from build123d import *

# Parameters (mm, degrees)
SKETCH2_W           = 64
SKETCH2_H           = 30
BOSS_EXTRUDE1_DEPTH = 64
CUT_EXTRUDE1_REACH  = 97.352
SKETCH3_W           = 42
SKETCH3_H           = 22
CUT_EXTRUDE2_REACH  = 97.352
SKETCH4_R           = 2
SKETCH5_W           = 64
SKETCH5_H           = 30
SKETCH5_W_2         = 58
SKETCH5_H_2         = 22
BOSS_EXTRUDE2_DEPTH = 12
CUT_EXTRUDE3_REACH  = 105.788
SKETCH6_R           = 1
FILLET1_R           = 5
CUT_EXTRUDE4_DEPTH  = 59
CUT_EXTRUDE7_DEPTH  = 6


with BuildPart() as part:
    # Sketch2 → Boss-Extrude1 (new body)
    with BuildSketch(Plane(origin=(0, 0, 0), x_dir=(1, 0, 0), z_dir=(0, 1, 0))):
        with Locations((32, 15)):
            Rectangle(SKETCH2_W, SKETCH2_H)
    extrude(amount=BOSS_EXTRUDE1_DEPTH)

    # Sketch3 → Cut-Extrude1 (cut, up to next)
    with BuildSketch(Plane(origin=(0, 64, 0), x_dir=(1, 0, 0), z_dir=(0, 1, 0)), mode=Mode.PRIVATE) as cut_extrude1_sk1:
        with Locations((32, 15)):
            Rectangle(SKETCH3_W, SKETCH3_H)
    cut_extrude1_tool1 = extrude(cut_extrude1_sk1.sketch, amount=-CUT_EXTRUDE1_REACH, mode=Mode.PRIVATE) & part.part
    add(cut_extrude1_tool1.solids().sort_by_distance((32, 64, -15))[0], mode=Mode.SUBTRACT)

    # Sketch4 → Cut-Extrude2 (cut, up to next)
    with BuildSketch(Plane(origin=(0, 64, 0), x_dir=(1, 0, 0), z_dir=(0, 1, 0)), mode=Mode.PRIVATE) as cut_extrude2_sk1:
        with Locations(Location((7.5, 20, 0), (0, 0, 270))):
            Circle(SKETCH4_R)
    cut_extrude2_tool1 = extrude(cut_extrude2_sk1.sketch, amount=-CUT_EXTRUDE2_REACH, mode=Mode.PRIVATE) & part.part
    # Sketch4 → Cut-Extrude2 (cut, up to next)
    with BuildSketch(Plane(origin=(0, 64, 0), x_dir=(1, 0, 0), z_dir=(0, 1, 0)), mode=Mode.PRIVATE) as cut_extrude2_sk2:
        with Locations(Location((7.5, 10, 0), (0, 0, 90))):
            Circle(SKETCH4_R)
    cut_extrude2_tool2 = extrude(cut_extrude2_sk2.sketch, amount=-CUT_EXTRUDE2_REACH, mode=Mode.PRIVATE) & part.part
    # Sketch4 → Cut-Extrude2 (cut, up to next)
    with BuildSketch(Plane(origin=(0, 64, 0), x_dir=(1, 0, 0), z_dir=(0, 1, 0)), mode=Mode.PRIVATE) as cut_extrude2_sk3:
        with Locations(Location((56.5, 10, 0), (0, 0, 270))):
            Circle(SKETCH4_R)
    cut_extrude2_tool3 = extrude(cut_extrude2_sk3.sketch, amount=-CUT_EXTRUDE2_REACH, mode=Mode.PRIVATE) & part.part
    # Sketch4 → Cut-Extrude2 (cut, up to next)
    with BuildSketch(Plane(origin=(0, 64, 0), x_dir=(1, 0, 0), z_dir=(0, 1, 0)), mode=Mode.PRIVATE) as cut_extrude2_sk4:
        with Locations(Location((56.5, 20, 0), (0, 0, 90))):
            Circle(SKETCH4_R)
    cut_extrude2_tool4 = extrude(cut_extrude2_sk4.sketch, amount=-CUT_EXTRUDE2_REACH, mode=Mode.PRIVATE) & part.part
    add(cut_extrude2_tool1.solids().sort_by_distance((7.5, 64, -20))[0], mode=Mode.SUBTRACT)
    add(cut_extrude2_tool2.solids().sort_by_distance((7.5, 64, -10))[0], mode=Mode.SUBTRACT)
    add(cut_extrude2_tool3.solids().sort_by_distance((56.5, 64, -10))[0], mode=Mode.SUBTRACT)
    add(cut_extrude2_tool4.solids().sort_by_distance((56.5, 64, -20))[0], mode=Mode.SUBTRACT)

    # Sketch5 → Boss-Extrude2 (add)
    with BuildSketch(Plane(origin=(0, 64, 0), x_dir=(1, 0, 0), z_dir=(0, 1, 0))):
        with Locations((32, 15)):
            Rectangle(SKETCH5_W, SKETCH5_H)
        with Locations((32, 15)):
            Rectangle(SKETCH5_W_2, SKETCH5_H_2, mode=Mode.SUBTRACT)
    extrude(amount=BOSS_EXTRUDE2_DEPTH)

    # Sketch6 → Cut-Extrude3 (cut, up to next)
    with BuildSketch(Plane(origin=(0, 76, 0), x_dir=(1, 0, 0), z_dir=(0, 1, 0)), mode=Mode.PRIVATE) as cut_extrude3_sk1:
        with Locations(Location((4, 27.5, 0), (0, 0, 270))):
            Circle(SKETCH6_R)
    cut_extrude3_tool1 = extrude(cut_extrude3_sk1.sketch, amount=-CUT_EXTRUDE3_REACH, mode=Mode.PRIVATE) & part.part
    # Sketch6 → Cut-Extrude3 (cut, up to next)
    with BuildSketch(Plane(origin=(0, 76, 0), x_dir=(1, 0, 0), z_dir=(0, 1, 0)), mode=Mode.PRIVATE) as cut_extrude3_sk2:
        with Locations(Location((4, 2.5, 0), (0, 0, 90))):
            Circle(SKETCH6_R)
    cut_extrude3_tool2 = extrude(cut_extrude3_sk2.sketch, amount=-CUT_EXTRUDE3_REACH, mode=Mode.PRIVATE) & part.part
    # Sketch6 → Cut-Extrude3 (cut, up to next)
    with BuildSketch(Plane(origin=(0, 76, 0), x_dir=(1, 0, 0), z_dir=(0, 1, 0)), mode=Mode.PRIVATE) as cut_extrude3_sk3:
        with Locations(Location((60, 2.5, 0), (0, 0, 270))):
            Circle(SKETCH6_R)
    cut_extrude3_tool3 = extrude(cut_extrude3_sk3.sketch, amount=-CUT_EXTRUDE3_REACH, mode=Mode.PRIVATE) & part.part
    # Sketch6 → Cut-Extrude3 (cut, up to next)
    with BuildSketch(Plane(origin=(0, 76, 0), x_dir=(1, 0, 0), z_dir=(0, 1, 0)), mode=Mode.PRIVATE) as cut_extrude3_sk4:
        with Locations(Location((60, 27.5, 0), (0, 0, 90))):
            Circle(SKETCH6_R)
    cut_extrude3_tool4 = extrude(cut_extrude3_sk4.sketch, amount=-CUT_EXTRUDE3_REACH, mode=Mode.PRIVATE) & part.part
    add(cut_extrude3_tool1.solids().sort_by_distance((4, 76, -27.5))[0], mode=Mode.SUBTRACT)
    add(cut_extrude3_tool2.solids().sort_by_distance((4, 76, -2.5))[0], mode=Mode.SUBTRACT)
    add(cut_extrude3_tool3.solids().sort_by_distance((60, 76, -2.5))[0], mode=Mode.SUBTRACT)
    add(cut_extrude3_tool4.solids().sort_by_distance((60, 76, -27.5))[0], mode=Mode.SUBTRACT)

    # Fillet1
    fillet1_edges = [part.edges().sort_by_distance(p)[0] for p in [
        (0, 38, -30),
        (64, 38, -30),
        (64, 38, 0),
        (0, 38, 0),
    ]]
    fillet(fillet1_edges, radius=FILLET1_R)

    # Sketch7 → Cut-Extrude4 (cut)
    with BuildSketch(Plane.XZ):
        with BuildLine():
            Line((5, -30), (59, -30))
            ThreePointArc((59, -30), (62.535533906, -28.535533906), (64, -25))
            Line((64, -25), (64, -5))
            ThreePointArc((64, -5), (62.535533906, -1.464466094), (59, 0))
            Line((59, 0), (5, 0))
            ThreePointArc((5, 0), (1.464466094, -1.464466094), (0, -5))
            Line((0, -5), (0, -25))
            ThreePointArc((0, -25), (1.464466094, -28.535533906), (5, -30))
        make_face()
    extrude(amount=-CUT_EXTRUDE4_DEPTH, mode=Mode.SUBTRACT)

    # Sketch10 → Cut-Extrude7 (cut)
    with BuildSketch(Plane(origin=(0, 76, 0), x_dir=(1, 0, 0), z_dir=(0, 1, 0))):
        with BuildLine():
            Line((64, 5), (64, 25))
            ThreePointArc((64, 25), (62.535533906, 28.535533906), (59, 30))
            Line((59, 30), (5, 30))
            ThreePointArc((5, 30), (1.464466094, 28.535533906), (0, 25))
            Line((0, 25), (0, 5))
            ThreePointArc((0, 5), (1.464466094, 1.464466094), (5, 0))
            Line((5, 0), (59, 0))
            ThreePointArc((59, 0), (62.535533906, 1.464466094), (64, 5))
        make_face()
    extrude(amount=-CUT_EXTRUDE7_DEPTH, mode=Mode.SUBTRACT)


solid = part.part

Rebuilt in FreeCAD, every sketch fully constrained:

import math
import FreeCAD as App
import Part
import Sketcher


def edges_at(feature, points):
    """Names of the edges that pass closest to the given points."""
    edges = feature.Shape.Edges
    near = lambda p: min(range(len(edges)), key=lambda i: edges[i].distToShape(Part.Vertex(*p))[0])
    return sorted({f"Edge{near(p) + 1}" for p in points})


def add_polygon(sketch, points):
    """Adds a closed chain of lines whose ends are joined by coincident constraints."""
    first, n = sketch.GeometryCount, len(points)
    for a, b in zip(points, points[1:] + points[:1]):
        sketch.addGeometry(Part.LineSegment(App.Vector(*a, 0), App.Vector(*b, 0)), False)
    for i in range(n):
        sketch.addConstraint(Sketcher.Constraint("Coincident", first + i, 2, first + (i + 1) % n, 1))

doc = App.newDocument("Part")
body = doc.addObject("PartDesign::Body", "Body")

# Sketch on XZ plane
sketch1 = body.newObject("Sketcher::SketchObject", "Sketch")
sketch1.AttachmentSupport = (doc.getObject("XZ_Plane"), [""])
sketch1.MapMode = "FlatFace"
add_polygon(sketch1, [(0, -30), (0, 0), (64, 0), (64, -30)])  # lines 0-3
sketch1.addConstraint([
    Sketcher.Constraint("Vertical", 0),
    Sketcher.Constraint("Horizontal", 1),
    Sketcher.Constraint("Vertical", 2),
    Sketcher.Constraint("Horizontal", 3),
    Sketcher.Constraint("Coincident", 0, 2, -1, 1),
    Sketcher.Constraint("DistanceX", 1, 1, 1, 2, 64.0),
    Sketcher.Constraint("DistanceY", 0, 1, 0, 2, 30.0),
])
pad1 = body.newObject("PartDesign::Pad", "Pad")
pad1.Profile = sketch1
pad1.Length = 64
pad1.Reversed = True

# Sketch on XZ plane
sketch2 = body.newObject("Sketcher::SketchObject", "Sketch001")
sketch2.AttachmentSupport = (doc.getObject("XZ_Plane"), [""])
sketch2.MapMode = "FlatFace"
sketch2.AttachmentOffset = App.Placement(App.Vector(0, 0, -64), App.Rotation())
add_polygon(sketch2, [(11, -26), (11, -4), (53, -4), (53, -26)])  # lines 0-3
sketch2.addConstraint([
    Sketcher.Constraint("Vertical", 0),
    Sketcher.Constraint("Horizontal", 1),
    Sketcher.Constraint("Vertical", 2),
    Sketcher.Constraint("Horizontal", 3),
    Sketcher.Constraint("DistanceX", 1, 1, 1, 2, 42.0),
    Sketcher.Constraint("DistanceY", 0, 1, 0, 2, 22.0),
    Sketcher.Constraint("DistanceX", -1, 1, 0, 2, 11.0),
    Sketcher.Constraint("DistanceY", 0, 2, -1, 1, 4.0),
])
pocket1 = body.newObject("PartDesign::Pocket", "Pocket")
pocket1.Profile = sketch2
pocket1.Type = "UpToFirst"
pocket1.Reversed = True

# Sketch on XZ plane
sketch3 = body.newObject("Sketcher::SketchObject", "Sketch002")
sketch3.AttachmentSupport = (doc.getObject("XZ_Plane"), [""])
sketch3.MapMode = "FlatFace"
sketch3.AttachmentOffset = App.Placement(App.Vector(0, 0, -64), App.Rotation())
sketch3.addGeometry(Part.Circle(App.Vector(7.5, -20, 0), App.Vector(0, 0, 1), 2), False)
sketch3.addConstraint([
    Sketcher.Constraint("Diameter", 0, 4.0),
    Sketcher.Constraint("DistanceY", 0, 3, -1, 1, 20.0),
    Sketcher.Constraint("DistanceX", -1, 1, 0, 3, 7.5),
])
pocket2 = body.newObject("PartDesign::Pocket", "Pocket001")
pocket2.Profile = sketch3
pocket2.Type = "UpToFirst"
pocket2.Reversed = True

# Sketch on XZ plane
sketch4 = body.newObject("Sketcher::SketchObject", "Sketch003")
sketch4.AttachmentSupport = (doc.getObject("XZ_Plane"), [""])
sketch4.MapMode = "FlatFace"
sketch4.AttachmentOffset = App.Placement(App.Vector(0, 0, -64), App.Rotation())
sketch4.addGeometry(Part.Circle(App.Vector(7.5, -10, 0), App.Vector(0, 0, 1), 2), False)
sketch4.addConstraint([
    Sketcher.Constraint("Diameter", 0, 4.0),
    Sketcher.Constraint("DistanceY", 0, 3, -1, 1, 10.0),
    Sketcher.Constraint("DistanceX", -1, 1, 0, 3, 7.5),
])
pocket3 = body.newObject("PartDesign::Pocket", "Pocket002")
pocket3.Profile = sketch4
pocket3.Type = "UpToFirst"
pocket3.Reversed = True

# Sketch on XZ plane
sketch5 = body.newObject("Sketcher::SketchObject", "Sketch004")
sketch5.AttachmentSupport = (doc.getObject("XZ_Plane"), [""])
sketch5.MapMode = "FlatFace"
sketch5.AttachmentOffset = App.Placement(App.Vector(0, 0, -64), App.Rotation())
sketch5.addGeometry(Part.Circle(App.Vector(56.5, -10, 0), App.Vector(0, 0, 1), 2), False)
sketch5.addConstraint([
    Sketcher.Constraint("Diameter", 0, 4.0),
    Sketcher.Constraint("DistanceY", 0, 3, -1, 1, 10.0),
    Sketcher.Constraint("DistanceX", -1, 1, 0, 3, 56.5),
])
pocket4 = body.newObject("PartDesign::Pocket", "Pocket003")
pocket4.Profile = sketch5
pocket4.Type = "UpToFirst"
pocket4.Reversed = True

# Sketch on XZ plane
sketch6 = body.newObject("Sketcher::SketchObject", "Sketch005")
sketch6.AttachmentSupport = (doc.getObject("XZ_Plane"), [""])
sketch6.MapMode = "FlatFace"
sketch6.AttachmentOffset = App.Placement(App.Vector(0, 0, -64), App.Rotation())
sketch6.addGeometry(Part.Circle(App.Vector(56.5, -20, 0), App.Vector(0, 0, 1), 2), False)
sketch6.addConstraint([
    Sketcher.Constraint("Diameter", 0, 4.0),
    Sketcher.Constraint("DistanceY", 0, 3, -1, 1, 20.0),
    Sketcher.Constraint("DistanceX", -1, 1, 0, 3, 56.5),
])
pocket5 = body.newObject("PartDesign::Pocket", "Pocket004")
pocket5.Profile = sketch6
pocket5.Type = "UpToFirst"
pocket5.Reversed = True

# Sketch on XZ plane
sketch7 = body.newObject("Sketcher::SketchObject", "Sketch006")
sketch7.AttachmentSupport = (doc.getObject("XZ_Plane"), [""])
sketch7.MapMode = "FlatFace"
sketch7.AttachmentOffset = App.Placement(App.Vector(0, 0, -64), App.Rotation())
add_polygon(sketch7, [(0, -30), (0, 0), (64, 0), (64, -30)])  # lines 0-3
add_polygon(sketch7, [(61, -4), (3, -4), (3, -26), (61, -26)])  # lines 4-7
sketch7.addConstraint([
    Sketcher.Constraint("Vertical", 0),
    Sketcher.Constraint("Horizontal", 1),
    Sketcher.Constraint("Vertical", 2),
    Sketcher.Constraint("Horizontal", 3),
    Sketcher.Constraint("Horizontal", 4),
    Sketcher.Constraint("Vertical", 5),
    Sketcher.Constraint("Horizontal", 6),
    Sketcher.Constraint("Vertical", 7),
    Sketcher.Constraint("Coincident", 0, 2, -1, 1),
    Sketcher.Constraint("DistanceX", 1, 1, 1, 2, 64.0),
    Sketcher.Constraint("DistanceX", 4, 2, 4, 1, 58.0),
    Sketcher.Constraint("DistanceY", 0, 1, 0, 2, 30.0),
    Sketcher.Constraint("DistanceY", 5, 2, 5, 1, 22.0),
    Sketcher.Constraint("DistanceX", -1, 1, 4, 2, 3.0),
    Sketcher.Constraint("DistanceY", 4, 2, -1, 1, 4.0),
])
pad2 = body.newObject("PartDesign::Pad", "Pad001")
pad2.Profile = sketch7
pad2.Length = 12
pad2.Reversed = True

# Sketch on XZ plane
sketch8 = body.newObject("Sketcher::SketchObject", "Sketch007")
sketch8.AttachmentSupport = (doc.getObject("XZ_Plane"), [""])
sketch8.MapMode = "FlatFace"
sketch8.AttachmentOffset = App.Placement(App.Vector(0, 0, -76), App.Rotation())
sketch8.addGeometry(Part.Circle(App.Vector(4, -27.5, 0), App.Vector(0, 0, 1), 1), False)
sketch8.addConstraint([
    Sketcher.Constraint("Diameter", 0, 2.0),
    Sketcher.Constraint("DistanceX", -1, 1, 0, 3, 4.0),
    Sketcher.Constraint("DistanceY", 0, 3, -1, 1, 27.5),
])
pocket6 = body.newObject("PartDesign::Pocket", "Pocket005")
pocket6.Profile = sketch8
pocket6.Type = "UpToFirst"
pocket6.Reversed = True

# Sketch on XZ plane
sketch9 = body.newObject("Sketcher::SketchObject", "Sketch008")
sketch9.AttachmentSupport = (doc.getObject("XZ_Plane"), [""])
sketch9.MapMode = "FlatFace"
sketch9.AttachmentOffset = App.Placement(App.Vector(0, 0, -76), App.Rotation())
sketch9.addGeometry(Part.Circle(App.Vector(4, -2.5, 0), App.Vector(0, 0, 1), 1), False)
sketch9.addConstraint([
    Sketcher.Constraint("Diameter", 0, 2.0),
    Sketcher.Constraint("DistanceX", -1, 1, 0, 3, 4.0),
    Sketcher.Constraint("DistanceY", 0, 3, -1, 1, 2.5),
])
pocket7 = body.newObject("PartDesign::Pocket", "Pocket006")
pocket7.Profile = sketch9
pocket7.Type = "UpToFirst"
pocket7.Reversed = True

# Sketch on XZ plane
sketch10 = body.newObject("Sketcher::SketchObject", "Sketch009")
sketch10.AttachmentSupport = (doc.getObject("XZ_Plane"), [""])
sketch10.MapMode = "FlatFace"
sketch10.AttachmentOffset = App.Placement(App.Vector(0, 0, -76), App.Rotation())
sketch10.addGeometry(Part.Circle(App.Vector(60, -2.5, 0), App.Vector(0, 0, 1), 1), False)
sketch10.addConstraint([
    Sketcher.Constraint("Diameter", 0, 2.0),
    Sketcher.Constraint("DistanceX", -1, 1, 0, 3, 60.0),
    Sketcher.Constraint("DistanceY", 0, 3, -1, 1, 2.5),
])
pocket8 = body.newObject("PartDesign::Pocket", "Pocket007")
pocket8.Profile = sketch10
pocket8.Type = "UpToFirst"
pocket8.Reversed = True

# Sketch on XZ plane
sketch11 = body.newObject("Sketcher::SketchObject", "Sketch010")
sketch11.AttachmentSupport = (doc.getObject("XZ_Plane"), [""])
sketch11.MapMode = "FlatFace"
sketch11.AttachmentOffset = App.Placement(App.Vector(0, 0, -76), App.Rotation())
sketch11.addGeometry(Part.Circle(App.Vector(60, -27.5, 0), App.Vector(0, 0, 1), 1), False)
sketch11.addConstraint([
    Sketcher.Constraint("Diameter", 0, 2.0),
    Sketcher.Constraint("DistanceX", -1, 1, 0, 3, 60.0),
    Sketcher.Constraint("DistanceY", 0, 3, -1, 1, 27.5),
])
pocket9 = body.newObject("PartDesign::Pocket", "Pocket008")
pocket9.Profile = sketch11
pocket9.Type = "UpToFirst"
pocket9.Reversed = True
doc.recompute()

fillet = body.newObject("PartDesign::Fillet", "Fillet")
fillet.Base = (pocket9, edges_at(pocket9, [
    (0, 38, -30),
    (64, 38, -30),
    (64, 38, 0),
    (0, 38, 0),
]))
fillet.Radius = 5

# Sketch on XZ plane
sketch12 = body.newObject("Sketcher::SketchObject", "Sketch011")
sketch12.AttachmentSupport = (doc.getObject("XZ_Plane"), [""])
sketch12.MapMode = "FlatFace"
sketch12.addGeometry([
    Part.LineSegment(App.Vector(5, -30, 0), App.Vector(59, -30, 0)),  # 0
    Part.ArcOfCircle(Part.Circle(App.Vector(59, -25, 0), App.Vector(0, 0, 1), 5), math.radians(-90), math.radians(0)),  # 1
    Part.LineSegment(App.Vector(64, -25, 0), App.Vector(64, -5, 0)),  # 2
    Part.ArcOfCircle(Part.Circle(App.Vector(59, -5, 0), App.Vector(0, 0, 1), 5), math.radians(0), math.radians(90)),  # 3
    Part.LineSegment(App.Vector(59, 0, 0), App.Vector(5, 0, 0)),  # 4
    Part.ArcOfCircle(Part.Circle(App.Vector(5, -5, 0), App.Vector(0, 0, 1), 5), math.radians(90), math.radians(180)),  # 5
    Part.LineSegment(App.Vector(0, -5, 0), App.Vector(0, -25, 0)),  # 6
    Part.ArcOfCircle(Part.Circle(App.Vector(5, -25, 0), App.Vector(0, 0, 1), 5), math.radians(180), math.radians(270)),  # 7
], False)
sketch12.addConstraint([
    Sketcher.Constraint("Tangent", 0, 2, 1, 1),
    Sketcher.Constraint("Tangent", 1, 2, 2, 1),
    Sketcher.Constraint("Tangent", 2, 2, 3, 1),
    Sketcher.Constraint("Tangent", 3, 2, 4, 1),
    Sketcher.Constraint("Tangent", 4, 2, 5, 1),
    Sketcher.Constraint("Tangent", 5, 2, 6, 1),
    Sketcher.Constraint("Tangent", 6, 2, 7, 1),
    Sketcher.Constraint("Tangent", 7, 2, 0, 1),
    Sketcher.Constraint("Horizontal", 0),
    Sketcher.Constraint("Vertical", 2),
    Sketcher.Constraint("Horizontal", 4),
    Sketcher.Constraint("Vertical", 6),
    Sketcher.Constraint("Equal", 1, 3),
    Sketcher.Constraint("Equal", 3, 5),
    Sketcher.Constraint("Equal", 5, 7),
    Sketcher.Constraint("PointOnObject", 3, 2, -1),
    Sketcher.Constraint("PointOnObject", 5, 2, -2),
    Sketcher.Constraint("Radius", 1, 5.0),
    Sketcher.Constraint("DistanceX", 0, 1, 0, 2, 54.0),
    Sketcher.Constraint("DistanceY", 2, 1, 2, 2, 20.0),
])
pocket10 = body.newObject("PartDesign::Pocket", "Pocket009")
pocket10.Profile = sketch12
pocket10.Length = 59

# Sketch on XZ plane
sketch13 = body.newObject("Sketcher::SketchObject", "Sketch012")
sketch13.AttachmentSupport = (doc.getObject("XZ_Plane"), [""])
sketch13.MapMode = "FlatFace"
sketch13.AttachmentOffset = App.Placement(App.Vector(0, 0, -76), App.Rotation())
sketch13.addGeometry([
    Part.LineSegment(App.Vector(64, -5, 0), App.Vector(64, -25, 0)),  # 0
    Part.ArcOfCircle(Part.Circle(App.Vector(59, -25, 0), App.Vector(0, 0, 1), 5), math.radians(-90), math.radians(0)),  # 1
    Part.LineSegment(App.Vector(59, -30, 0), App.Vector(5, -30, 0)),  # 2
    Part.ArcOfCircle(Part.Circle(App.Vector(5, -25, 0), App.Vector(0, 0, 1), 5), math.radians(180), math.radians(270)),  # 3
    Part.LineSegment(App.Vector(0, -25, 0), App.Vector(0, -5, 0)),  # 4
    Part.ArcOfCircle(Part.Circle(App.Vector(5, -5, 0), App.Vector(0, 0, 1), 5), math.radians(90), math.radians(180)),  # 5
    Part.LineSegment(App.Vector(5, 0, 0), App.Vector(59, 0, 0)),  # 6
    Part.ArcOfCircle(Part.Circle(App.Vector(59, -5, 0), App.Vector(0, 0, 1), 5), math.radians(0), math.radians(90)),  # 7
], False)
sketch13.addConstraint([
    Sketcher.Constraint("Tangent", 0, 2, 1, 2),
    Sketcher.Constraint("Tangent", 1, 1, 2, 1),
    Sketcher.Constraint("Tangent", 2, 2, 3, 2),
    Sketcher.Constraint("Tangent", 3, 1, 4, 1),
    Sketcher.Constraint("Tangent", 4, 2, 5, 2),
    Sketcher.Constraint("Tangent", 5, 1, 6, 1),
    Sketcher.Constraint("Tangent", 6, 2, 7, 2),
    Sketcher.Constraint("Tangent", 7, 1, 0, 1),
    Sketcher.Constraint("Vertical", 0),
    Sketcher.Constraint("Horizontal", 2),
    Sketcher.Constraint("Vertical", 4),
    Sketcher.Constraint("Horizontal", 6),
    Sketcher.Constraint("Equal", 1, 3),
    Sketcher.Constraint("Equal", 3, 5),
    Sketcher.Constraint("Equal", 5, 7),
    Sketcher.Constraint("PointOnObject", 3, 1, -2),
    Sketcher.Constraint("PointOnObject", 5, 1, -1),
    Sketcher.Constraint("Radius", 1, 5.0),
    Sketcher.Constraint("DistanceX", 2, 2, 2, 1, 54.0),
    Sketcher.Constraint("DistanceY", 0, 2, 0, 1, 20.0),
])
pocket11 = body.newObject("PartDesign::Pocket", "Pocket010")
pocket11.Profile = sketch13
pocket11.Length = 6
pocket11.Reversed = True

doc.recompute()
